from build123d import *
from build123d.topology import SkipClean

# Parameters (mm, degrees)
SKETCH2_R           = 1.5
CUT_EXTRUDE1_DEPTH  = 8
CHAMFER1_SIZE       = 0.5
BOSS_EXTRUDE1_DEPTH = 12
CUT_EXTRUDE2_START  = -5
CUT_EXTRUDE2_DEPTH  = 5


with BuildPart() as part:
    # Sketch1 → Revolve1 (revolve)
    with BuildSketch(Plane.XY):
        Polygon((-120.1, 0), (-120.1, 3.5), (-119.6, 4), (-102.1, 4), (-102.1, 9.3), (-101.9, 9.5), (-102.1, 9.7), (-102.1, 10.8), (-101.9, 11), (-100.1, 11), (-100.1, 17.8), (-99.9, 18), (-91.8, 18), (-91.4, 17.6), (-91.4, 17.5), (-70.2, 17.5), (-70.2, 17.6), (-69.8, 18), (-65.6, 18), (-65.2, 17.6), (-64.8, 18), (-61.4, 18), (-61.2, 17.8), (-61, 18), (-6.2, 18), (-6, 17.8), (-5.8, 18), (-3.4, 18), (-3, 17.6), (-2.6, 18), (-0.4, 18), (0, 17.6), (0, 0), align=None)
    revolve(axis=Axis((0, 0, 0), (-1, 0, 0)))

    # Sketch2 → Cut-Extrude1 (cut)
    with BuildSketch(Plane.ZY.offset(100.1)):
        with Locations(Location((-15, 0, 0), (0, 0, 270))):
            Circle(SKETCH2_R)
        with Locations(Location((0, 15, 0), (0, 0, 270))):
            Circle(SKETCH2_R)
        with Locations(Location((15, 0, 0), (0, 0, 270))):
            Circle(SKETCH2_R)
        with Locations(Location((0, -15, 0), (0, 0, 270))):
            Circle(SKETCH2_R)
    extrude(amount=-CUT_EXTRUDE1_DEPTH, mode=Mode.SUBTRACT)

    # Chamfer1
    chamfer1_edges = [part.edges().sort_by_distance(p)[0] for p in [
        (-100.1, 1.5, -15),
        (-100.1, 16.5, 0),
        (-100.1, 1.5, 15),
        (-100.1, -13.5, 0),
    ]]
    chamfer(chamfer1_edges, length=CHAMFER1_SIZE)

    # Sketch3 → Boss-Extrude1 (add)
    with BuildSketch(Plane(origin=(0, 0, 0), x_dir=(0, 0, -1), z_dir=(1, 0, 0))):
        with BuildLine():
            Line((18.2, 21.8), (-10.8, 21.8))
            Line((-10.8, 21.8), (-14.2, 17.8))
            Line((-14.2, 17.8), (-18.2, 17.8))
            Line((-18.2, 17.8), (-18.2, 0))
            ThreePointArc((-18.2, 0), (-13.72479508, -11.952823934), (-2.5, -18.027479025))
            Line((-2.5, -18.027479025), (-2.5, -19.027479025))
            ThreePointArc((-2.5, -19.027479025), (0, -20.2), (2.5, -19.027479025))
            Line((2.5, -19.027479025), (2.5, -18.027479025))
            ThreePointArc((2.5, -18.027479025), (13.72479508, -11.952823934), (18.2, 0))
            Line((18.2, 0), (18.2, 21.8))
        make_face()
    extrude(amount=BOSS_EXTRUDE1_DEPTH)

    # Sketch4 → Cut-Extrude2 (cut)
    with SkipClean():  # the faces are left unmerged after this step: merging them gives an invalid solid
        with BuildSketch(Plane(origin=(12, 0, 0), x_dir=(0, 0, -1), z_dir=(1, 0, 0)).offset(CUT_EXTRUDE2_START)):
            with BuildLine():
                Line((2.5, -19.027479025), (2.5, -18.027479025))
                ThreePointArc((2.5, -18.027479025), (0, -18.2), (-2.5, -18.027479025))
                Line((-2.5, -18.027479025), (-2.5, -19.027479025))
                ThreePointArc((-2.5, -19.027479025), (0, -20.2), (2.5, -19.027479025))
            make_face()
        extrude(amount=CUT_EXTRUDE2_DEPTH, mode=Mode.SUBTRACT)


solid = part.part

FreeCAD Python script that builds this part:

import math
import FreeCAD as App
import Part
import Sketcher
from FreeCAD import Vector
Q = App.Units.Quantity


def edges_at(feature, points):
    """Names of the edges that pass closest to the given points."""
    edges = feature.Shape.Edges
    near = lambda p: min(range(len(edges)), key=lambda i: edges[i].distToShape(Part.Vertex(*p))[0])
    return sorted({f"Edge{near(p) + 1}" for p in points})


def add_polygon(sketch, points):
    """Adds a closed chain of lines whose ends are joined by coincident constraints."""
    first, n = sketch.GeometryCount, len(points)
    for a, b in zip(points, points[1:] + points[:1]):
        sketch.addGeometry(Part.LineSegment(App.Vector(*a, 0), App.Vector(*b, 0)), False)
    for i in range(n):
        sketch.addConstraint(Sketcher.Constraint("Coincident", first + i, 2, first + (i + 1) % n, 1))

doc = App.newDocument("Part")
body = doc.addObject("PartDesign::Body", "Body")

# Sketch on XY plane
sketch1 = body.newObject("Sketcher::SketchObject", "Sketch")
sketch1.AttachmentSupport = (doc.getObject("XY_Plane"), [""])
sketch1.MapMode = "FlatFace"
add_polygon(sketch1, [(-120.1, 3.5), (-120.1, 0), (0, 0), (0, 17.6), (-0.4, 18), (-2.6, 18), (-3, 17.6), (-3.4, 18), (-5.8, 18), (-6, 17.8), (-6.2, 18), (-61, 18), (-61.2, 17.8), (-61.4, 18), (-64.8, 18), (-65.2, 17.6), (-65.6, 18), (-69.8, 18), (-70.2, 17.6), (-70.2, 17.5), (-91.4, 17.5), (-91.4, 17.6), (-91.8, 18), (-99.9, 18), (-100.1, 17.8), (-100.1, 11), (-101.9, 11), (-102.1, 10.8), (-102.1, 9.7), (-101.9, 9.5), (-102.1, 9.3), (-102.1, 4), (-119.6, 4)])  # lines 0-32
sketch1.addConstraint(Sketcher.Constraint("Vertical", 0))
sketch1.addConstraint(Sketcher.Constraint("Horizontal", 1))
sketch1.addConstraint(Sketcher.Constraint("Vertical", 2))
sketch1.addConstraint(Sketcher.Constraint("Horizontal", 4))
sketch1.addConstraint(Sketcher.Constraint("Horizontal", 7))
sketch1.addConstraint(Sketcher.Constraint("Horizontal", 10))
sketch1.addConstraint(Sketcher.Constraint("Horizontal", 13))
sketch1.addConstraint(Sketcher.Constraint("Horizontal", 16))
sketch1.addConstraint(Sketcher.Constraint("Vertical", 18))
sketch1.addConstraint(Sketcher.Constraint("Horizontal", 19))
sketch1.addConstraint(Sketcher.Constraint("Vertical", 20))
sketch1.addConstraint(Sketcher.Constraint("Horizontal", 22))
sketch1.addConstraint(Sketcher.Constraint("Vertical", 24))
sketch1.addConstraint(Sketcher.Constraint("Horizontal", 25))
sketch1.addConstraint(Sketcher.Constraint("Vertical", 27))
sketch1.addConstraint(Sketcher.Constraint("Vertical", 30))
sketch1.addConstraint(Sketcher.Constraint("Horizontal", 31))
sketch1.addConstraint(Sketcher.Constraint("Coincident", 1, 2, -1, 1))
sketch1.addConstraint(Sketcher.Constraint("Perpendicular", 3, 5))
sketch1.addConstraint(Sketcher.Constraint("Perpendicular", 5, 6))
sketch1.addConstraint(Sketcher.Constraint("Perpendicular", 6, 8))
sketch1.addConstraint(Sketcher.Constraint("Perpendicular", 8, 9))
sketch1.addConstraint(Sketcher.Constraint("Perpendicular", 9, 11))
sketch1.addConstraint(Sketcher.Constraint("Perpendicular", 11, 12))
sketch1.addConstraint(Sketcher.Constraint("Perpendicular", 12, 14))
sketch1.addConstraint(Sketcher.Constraint("Perpendicular", 14, 15))
sketch1.addConstraint(Sketcher.Constraint("Perpendicular", 15, 17))
sketch1.addConstraint(Sketcher.Constraint("Perpendicular", 17, 21))
sketch1.addConstraint(Sketcher.Constraint("Perpendicular", 21, 23))
sketch1.addConstraint(Sketcher.Constraint("Parallel", 23, 26))
sketch1.addConstraint(Sketcher.Constraint("Perpendicular", 26, 28))
sketch1.addConstraint(Sketcher.Constraint("Perpendicular", 28, 29))
sketch1.addConstraint(Sketcher.Constraint("Parallel", 29, 32))
sketch1.addConstraint(Sketcher.Constraint("Horizontal", 2, 2, 5, 2))
sketch1.addConstraint(Sketcher.Constraint("Horizontal", 4, 2, 6, 2))
sketch1.addConstraint(Sketcher.Constraint("Horizontal", 7, 2, 9, 2))
sketch1.addConstraint(Sketcher.Constraint("Horizontal", 8, 2, 11, 2))
sketch1.addConstraint(Sketcher.Constraint("Horizontal", 10, 2, 12, 2))
sketch1.addConstraint(Sketcher.Constraint("Horizontal", 5, 2, 14, 2))
sketch1.addConstraint(Sketcher.Constraint("Horizontal", 13, 2, 15, 2))
sketch1.addConstraint(Sketcher.Constraint("Horizontal", 14, 2, 17, 2))
sketch1.addConstraint(Sketcher.Constraint("Horizontal", 17, 2, 20, 2))
sketch1.addConstraint(Sketcher.Constraint("Horizontal", 16, 2, 21, 2))
sketch1.addConstraint(Sketcher.Constraint("Horizontal", 11, 2, 23, 2))
sketch1.addConstraint(Sketcher.Constraint("Vertical", 25, 2, 28, 2))
sketch1.addConstraint(Sketcher.Constraint("Vertical", 27, 2, 29, 2))
sketch1.addConstraint(Sketcher.Constraint("Equal", 3, 5))
sketch1.addConstraint(Sketcher.Constraint("Equal", 23, 26))
sketch1.addConstraint(Sketcher.Constraint("DistanceX", 1, 1, 1, 2, Q("120.1 mm")))
sketch1.addConstraint(Sketcher.Constraint("DistanceX", 4, 2, 4, 1, Q("2.2 mm")))
sketch1.addConstraint(Sketcher.Constraint("DistanceX", 7, 2, 7, 1, Q("2.4 mm")))
sketch1.addConstraint(Sketcher.Constraint("DistanceX", 10, 2, 10, 1, Q("54.8 mm")))
sketch1.addConstraint(Sketcher.Constraint("DistanceX", 13, 2, 13, 1, Q("3.4 mm")))
sketch1.addConstraint(Sketcher.Constraint("DistanceX", 16, 2, 16, 1, Q("4.2 mm")))
sketch1.addConstraint(Sketcher.Constraint("DistanceX", 19, 2, 19, 1, Q("21.2 mm")))
sketch1.addConstraint(Sketcher.Constraint("DistanceX", 22, 2, 22, 1, Q("8.1 mm")))
sketch1.addConstraint(Sketcher.Constraint("DistanceX", 25, 2, 25, 1, Q("1.8 mm")))
sketch1.addConstraint(Sketcher.Constraint("DistanceX", 31, 2, 31, 1, Q("17.5 mm")))
sketch1.addConstraint(Sketcher.Constraint("DistanceY", 0, 2, 0, 1, Q("3.5 mm")))
sketch1.addConstraint(Sketcher.Constraint("DistanceY", 2, 1, 2, 2, Q("17.6 mm")))
sketch1.addConstraint(Sketcher.Constraint("DistanceY", 18, 2, 18, 1, Q("0.1 mm")))
sketch1.addConstraint(Sketcher.Constraint("DistanceY", 24, 2, 24, 1, Q("6.8 mm")))
sketch1.addConstraint(Sketcher.Constraint("DistanceY", 27, 2, 27, 1, Q("1.1 mm")))
sketch1.addConstraint(Sketcher.Constraint("DistanceY", 30, 2, 30, 1, Q("5.3 mm")))
sketch1.addConstraint(Sketcher.Constraint("DistanceY", -1, 1, 3, 2, Q("18 mm")))
revolution = body.newObject("PartDesign::Revolution", "Revolution")
revolution.Profile = sketch1
revolution.ReferenceAxis = (sketch1, ["H_Axis"])
revolution.Angle = 360

# Sketch on YZ plane
sketch2 = body.newObject("Sketcher::SketchObject", "Sketch001")
sketch2.AttachmentSupport = (doc.getObject("YZ_Plane"), [""])
sketch2.MapMode = "FlatFace"
sketch2.AttachmentOffset = App.Placement(Vector(0, 0, -100.1), App.Rotation())
sketch2.addGeometry(Part.Circle(Vector(0, -15, 0), Vector(0, 0, 1), 1.5), False)
sketch2.addGeometry(Part.Circle(Vector(15, 0, 0), Vector(0, 0, 1), 1.5), False)
sketch2.addGeometry(Part.Circle(Vector(0, 15, 0), Vector(0, 0, 1), 1.5), False)
sketch2.addGeometry(Part.Circle(Vector(-15, 0, 0), Vector(0, 0, 1), 1.5), False)
sketch2.addConstraint(Sketcher.Constraint("Equal", 0, 1))
sketch2.addConstraint(Sketcher.Constraint("Equal", 1, 2))
sketch2.addConstraint(Sketcher.Constraint("Equal", 2, 3))
sketch2.addConstraint(Sketcher.Constraint("Symmetric", 0, 3, 2, 3, -1, 1))
sketch2.addConstraint(Sketcher.Constraint("Symmetric", 1, 3, 3, 3, -1, 1))
sketch2.addConstraint(Sketcher.Constraint("PointOnObject", 0, 3, -2))
sketch2.addConstraint(Sketcher.Constraint("PointOnObject", 1, 3, -1))
sketch2.addConstraint(Sketcher.Constraint("Diameter", 0, Q("3 mm")))
sketch2.addConstraint(Sketcher.Constraint("DistanceY", 0, 3, -1, 1, Q("15 mm")))
sketch2.addConstraint(Sketcher.Constraint("DistanceX", -1, 1, 1, 3, Q("15 mm")))
pocket1 = body.newObject("PartDesign::Pocket", "Pocket")
pocket1.Profile = sketch2
pocket1.Length = 8
pocket1.Reversed = True
doc.recompute()

chamfer = body.newObject("PartDesign::Chamfer", "Chamfer")
chamfer.Base = (pocket1, edges_at(pocket1, [
    (-100.1, 1.5, -15),
    (-100.1, 16.5, 0),
    (-100.1, 1.5, 15),
    (-100.1, -13.5, 0),
]))
chamfer.Size = 0.5

# Sketch on YZ plane
sketch3 = body.newObject("Sketcher::SketchObject", "Sketch002")
sketch3.AttachmentSupport = (doc.getObject("YZ_Plane"), [""])
sketch3.MapMode = "FlatFace"
sketch3.addGeometry(Part.LineSegment(Vector(21.8, -18.2, 0), Vector(21.8, 10.8, 0)), False)
sketch3.addGeometry(Part.LineSegment(Vector(21.8, 10.8, 0), Vector(17.8, 14.2, 0)), False)
sketch3.addGeometry(Part.LineSegment(Vector(17.8, 14.2, 0), Vector(17.8, 18.2, 0)), False)
sketch3.addGeometry(Part.LineSegment(Vector(17.8, 18.2, 0), Vector(0, 18.2, 0)), False)
sketch3.addGeometry(Part.ArcOfCircle(Part.Circle(Vector(0, 0, 0), Vector(0, 0, 1), 18.2), math.radians(90), math.radians(172)), False)
sketch3.addGeometry(Part.LineSegment(Vector(-18, 2.5, 0), Vector(-19, 2.5, 0)), False)
sketch3.addGeometry(Part.ArcOfCircle(Part.Circle(Vector(-16.9, 0, 0), Vector(0, 0, 1), 3.3), math.radians(130), math.radians(230)), False)
sketch3.addGeometry(Part.LineSegment(Vector(-19, -2.5, 0), Vector(-18, -2.5, 0)), False)
sketch3.addGeometry(Part.ArcOfCircle(Part.Circle(Vector(0, 0, 0), Vector(0, 0, 1), 18.2), math.radians(-172), math.radians(-90)), False)
sketch3.addGeometry(Part.LineSegment(Vector(0, -18.2, 0), Vector(21.8, -18.2, 0)), False)
sketch3.addConstraint(Sketcher.Constraint("Coincident", 0, 2, 1, 1))
sketch3.addConstraint(Sketcher.Constraint("Coincident", 1, 2, 2, 1))
sketch3.addConstraint(Sketcher.Constraint("Coincident", 2, 2, 3, 1))
sketch3.addConstraint(Sketcher.Constraint("Tangent", 3, 2, 4, 1))
sketch3.addConstraint(Sketcher.Constraint("Coincident", 4, 2, 5, 1))
sketch3.addConstraint(Sketcher.Constraint("Coincident", 5, 2, 6, 1))
sketch3.addConstraint(Sketcher.Constraint("Coincident", 6, 2, 7, 1))
sketch3.addConstraint(Sketcher.Constraint("Coincident", 7, 2, 8, 1))
sketch3.addConstraint(Sketcher.Constraint("Tangent", 8, 2, 9, 1))
sketch3.addConstraint(Sketcher.Constraint("Coincident", 9, 2, 0, 1))
sketch3.addConstraint(Sketcher.Constraint("Vertical", 0))
sketch3.addConstraint(Sketcher.Constraint("Vertical", 2))
sketch3.addConstraint(Sketcher.Constraint("Horizontal", 3))
sketch3.addConstraint(Sketcher.Constraint("Horizontal", 5))
sketch3.addConstraint(Sketcher.Constraint("Horizontal", 7))
sketch3.addConstraint(Sketcher.Constraint("Horizontal", 9))
sketch3.addConstraint(Sketcher.Constraint("Coincident", 4, 3, -1, 1))
sketch3.addConstraint(Sketcher.Constraint("Coincident", 8, 3, -1, 1))
sketch3.addConstraint(Sketcher.Constraint("Equal", 4, 8))
sketch3.addConstraint(Sketcher.Constraint("Symmetric", 5, 2, 6, 2, -1))
sketch3.addConstraint(Sketcher.Constraint("Radius", 4, Q("18.2 mm")))
sketch3.addConstraint(Sketcher.Constraint("DistanceX", 5, 2, 5, 1, Q("1 mm")))
sketch3.addConstraint(Sketcher.Constraint("DistanceY", 0, 1, 0, 2, Q("29 mm")))
sketch3.addConstraint(Sketcher.Constraint("DistanceY", 2, 1, 2, 2, Q("4 mm")))
sketch3.addConstraint(Sketcher.Constraint("DistanceX", 3, 2, 3, 1, Q("17.8 mm")))
sketch3.addConstraint(Sketcher.Constraint("DistanceX", 9, 1, 9, 2, Q("21.8 mm")))
sketch3.addConstraint(Sketcher.Constraint("DistanceY", 6, 2, 5, 2, Q("5 mm")))
sketch3.addConstraint(Sketcher.Constraint("Radius", 6, Q("3.251458 mm")))
pad1 = body.newObject("PartDesign::Pad", "Pad")
pad1.Profile = sketch3
pad1.Length = 12

# Sketch on YZ plane
sketch4 = body.newObject("Sketcher::SketchObject", "Sketch003")
sketch4.AttachmentSupport = (doc.getObject("YZ_Plane"), [""])
sketch4.MapMode = "FlatFace"
sketch4.AttachmentOffset = App.Placement(Vector(0, 0, 7), App.Rotation())
sketch4.addGeometry(Part.LineSegment(Vector(-19, -2.5, 0), Vector(-18, -2.5, 0)), False)
sketch4.addGeometry(Part.ArcOfCircle(Part.Circle(Vector(0, 0, 0), Vector(0, 0, 1), 18.2), math.radians(172.1), math.radians(187.9)), False)
sketch4.addGeometry(Part.LineSegment(Vector(-18, 2.5, 0), Vector(-19, 2.5, 0)), False)
sketch4.addGeometry(Part.ArcOfCircle(Part.Circle(Vector(-16.9, 0, 0), Vector(0, 0, 1), 3.3), math.radians(130), math.radians(230)), False)
sketch4.addConstraint(Sketcher.Constraint("Coincident", 0, 2, 1, 2))
sketch4.addConstraint(Sketcher.Constraint("Coincident", 1, 1, 2, 1))
sketch4.addConstraint(Sketcher.Constraint("Coincident", 2, 2, 3, 1))
sketch4.addConstraint(Sketcher.Constraint("Coincident", 3, 2, 0, 1))
sketch4.addConstraint(Sketcher.Constraint("Horizontal", 0))
sketch4.addConstraint(Sketcher.Constraint("Horizontal", 2))
sketch4.addConstraint(Sketcher.Constraint("Coincident", 1, 3, -1, 1))
sketch4.addConstraint(Sketcher.Constraint("Symmetric", 2, 2, 3, 2, -1))
sketch4.addConstraint(Sketcher.Constraint("Radius", 1, Q("18.2 mm")))
sketch4.addConstraint(Sketcher.Constraint("DistanceX", 0, 1, 0, 2, Q("1 mm")))
sketch4.addConstraint(Sketcher.Constraint("DistanceY", 0, 2, 1, 1, Q("5 mm")))
sketch4.addConstraint(Sketcher.Constraint("Radius", 3, Q("3.251458 mm")))
pocket2 = body.newObject("PartDesign::Pocket", "Pocket001")
pocket2.Profile = sketch4
pocket2.Length = 5
pocket2.Reversed = True

doc.recompute()
